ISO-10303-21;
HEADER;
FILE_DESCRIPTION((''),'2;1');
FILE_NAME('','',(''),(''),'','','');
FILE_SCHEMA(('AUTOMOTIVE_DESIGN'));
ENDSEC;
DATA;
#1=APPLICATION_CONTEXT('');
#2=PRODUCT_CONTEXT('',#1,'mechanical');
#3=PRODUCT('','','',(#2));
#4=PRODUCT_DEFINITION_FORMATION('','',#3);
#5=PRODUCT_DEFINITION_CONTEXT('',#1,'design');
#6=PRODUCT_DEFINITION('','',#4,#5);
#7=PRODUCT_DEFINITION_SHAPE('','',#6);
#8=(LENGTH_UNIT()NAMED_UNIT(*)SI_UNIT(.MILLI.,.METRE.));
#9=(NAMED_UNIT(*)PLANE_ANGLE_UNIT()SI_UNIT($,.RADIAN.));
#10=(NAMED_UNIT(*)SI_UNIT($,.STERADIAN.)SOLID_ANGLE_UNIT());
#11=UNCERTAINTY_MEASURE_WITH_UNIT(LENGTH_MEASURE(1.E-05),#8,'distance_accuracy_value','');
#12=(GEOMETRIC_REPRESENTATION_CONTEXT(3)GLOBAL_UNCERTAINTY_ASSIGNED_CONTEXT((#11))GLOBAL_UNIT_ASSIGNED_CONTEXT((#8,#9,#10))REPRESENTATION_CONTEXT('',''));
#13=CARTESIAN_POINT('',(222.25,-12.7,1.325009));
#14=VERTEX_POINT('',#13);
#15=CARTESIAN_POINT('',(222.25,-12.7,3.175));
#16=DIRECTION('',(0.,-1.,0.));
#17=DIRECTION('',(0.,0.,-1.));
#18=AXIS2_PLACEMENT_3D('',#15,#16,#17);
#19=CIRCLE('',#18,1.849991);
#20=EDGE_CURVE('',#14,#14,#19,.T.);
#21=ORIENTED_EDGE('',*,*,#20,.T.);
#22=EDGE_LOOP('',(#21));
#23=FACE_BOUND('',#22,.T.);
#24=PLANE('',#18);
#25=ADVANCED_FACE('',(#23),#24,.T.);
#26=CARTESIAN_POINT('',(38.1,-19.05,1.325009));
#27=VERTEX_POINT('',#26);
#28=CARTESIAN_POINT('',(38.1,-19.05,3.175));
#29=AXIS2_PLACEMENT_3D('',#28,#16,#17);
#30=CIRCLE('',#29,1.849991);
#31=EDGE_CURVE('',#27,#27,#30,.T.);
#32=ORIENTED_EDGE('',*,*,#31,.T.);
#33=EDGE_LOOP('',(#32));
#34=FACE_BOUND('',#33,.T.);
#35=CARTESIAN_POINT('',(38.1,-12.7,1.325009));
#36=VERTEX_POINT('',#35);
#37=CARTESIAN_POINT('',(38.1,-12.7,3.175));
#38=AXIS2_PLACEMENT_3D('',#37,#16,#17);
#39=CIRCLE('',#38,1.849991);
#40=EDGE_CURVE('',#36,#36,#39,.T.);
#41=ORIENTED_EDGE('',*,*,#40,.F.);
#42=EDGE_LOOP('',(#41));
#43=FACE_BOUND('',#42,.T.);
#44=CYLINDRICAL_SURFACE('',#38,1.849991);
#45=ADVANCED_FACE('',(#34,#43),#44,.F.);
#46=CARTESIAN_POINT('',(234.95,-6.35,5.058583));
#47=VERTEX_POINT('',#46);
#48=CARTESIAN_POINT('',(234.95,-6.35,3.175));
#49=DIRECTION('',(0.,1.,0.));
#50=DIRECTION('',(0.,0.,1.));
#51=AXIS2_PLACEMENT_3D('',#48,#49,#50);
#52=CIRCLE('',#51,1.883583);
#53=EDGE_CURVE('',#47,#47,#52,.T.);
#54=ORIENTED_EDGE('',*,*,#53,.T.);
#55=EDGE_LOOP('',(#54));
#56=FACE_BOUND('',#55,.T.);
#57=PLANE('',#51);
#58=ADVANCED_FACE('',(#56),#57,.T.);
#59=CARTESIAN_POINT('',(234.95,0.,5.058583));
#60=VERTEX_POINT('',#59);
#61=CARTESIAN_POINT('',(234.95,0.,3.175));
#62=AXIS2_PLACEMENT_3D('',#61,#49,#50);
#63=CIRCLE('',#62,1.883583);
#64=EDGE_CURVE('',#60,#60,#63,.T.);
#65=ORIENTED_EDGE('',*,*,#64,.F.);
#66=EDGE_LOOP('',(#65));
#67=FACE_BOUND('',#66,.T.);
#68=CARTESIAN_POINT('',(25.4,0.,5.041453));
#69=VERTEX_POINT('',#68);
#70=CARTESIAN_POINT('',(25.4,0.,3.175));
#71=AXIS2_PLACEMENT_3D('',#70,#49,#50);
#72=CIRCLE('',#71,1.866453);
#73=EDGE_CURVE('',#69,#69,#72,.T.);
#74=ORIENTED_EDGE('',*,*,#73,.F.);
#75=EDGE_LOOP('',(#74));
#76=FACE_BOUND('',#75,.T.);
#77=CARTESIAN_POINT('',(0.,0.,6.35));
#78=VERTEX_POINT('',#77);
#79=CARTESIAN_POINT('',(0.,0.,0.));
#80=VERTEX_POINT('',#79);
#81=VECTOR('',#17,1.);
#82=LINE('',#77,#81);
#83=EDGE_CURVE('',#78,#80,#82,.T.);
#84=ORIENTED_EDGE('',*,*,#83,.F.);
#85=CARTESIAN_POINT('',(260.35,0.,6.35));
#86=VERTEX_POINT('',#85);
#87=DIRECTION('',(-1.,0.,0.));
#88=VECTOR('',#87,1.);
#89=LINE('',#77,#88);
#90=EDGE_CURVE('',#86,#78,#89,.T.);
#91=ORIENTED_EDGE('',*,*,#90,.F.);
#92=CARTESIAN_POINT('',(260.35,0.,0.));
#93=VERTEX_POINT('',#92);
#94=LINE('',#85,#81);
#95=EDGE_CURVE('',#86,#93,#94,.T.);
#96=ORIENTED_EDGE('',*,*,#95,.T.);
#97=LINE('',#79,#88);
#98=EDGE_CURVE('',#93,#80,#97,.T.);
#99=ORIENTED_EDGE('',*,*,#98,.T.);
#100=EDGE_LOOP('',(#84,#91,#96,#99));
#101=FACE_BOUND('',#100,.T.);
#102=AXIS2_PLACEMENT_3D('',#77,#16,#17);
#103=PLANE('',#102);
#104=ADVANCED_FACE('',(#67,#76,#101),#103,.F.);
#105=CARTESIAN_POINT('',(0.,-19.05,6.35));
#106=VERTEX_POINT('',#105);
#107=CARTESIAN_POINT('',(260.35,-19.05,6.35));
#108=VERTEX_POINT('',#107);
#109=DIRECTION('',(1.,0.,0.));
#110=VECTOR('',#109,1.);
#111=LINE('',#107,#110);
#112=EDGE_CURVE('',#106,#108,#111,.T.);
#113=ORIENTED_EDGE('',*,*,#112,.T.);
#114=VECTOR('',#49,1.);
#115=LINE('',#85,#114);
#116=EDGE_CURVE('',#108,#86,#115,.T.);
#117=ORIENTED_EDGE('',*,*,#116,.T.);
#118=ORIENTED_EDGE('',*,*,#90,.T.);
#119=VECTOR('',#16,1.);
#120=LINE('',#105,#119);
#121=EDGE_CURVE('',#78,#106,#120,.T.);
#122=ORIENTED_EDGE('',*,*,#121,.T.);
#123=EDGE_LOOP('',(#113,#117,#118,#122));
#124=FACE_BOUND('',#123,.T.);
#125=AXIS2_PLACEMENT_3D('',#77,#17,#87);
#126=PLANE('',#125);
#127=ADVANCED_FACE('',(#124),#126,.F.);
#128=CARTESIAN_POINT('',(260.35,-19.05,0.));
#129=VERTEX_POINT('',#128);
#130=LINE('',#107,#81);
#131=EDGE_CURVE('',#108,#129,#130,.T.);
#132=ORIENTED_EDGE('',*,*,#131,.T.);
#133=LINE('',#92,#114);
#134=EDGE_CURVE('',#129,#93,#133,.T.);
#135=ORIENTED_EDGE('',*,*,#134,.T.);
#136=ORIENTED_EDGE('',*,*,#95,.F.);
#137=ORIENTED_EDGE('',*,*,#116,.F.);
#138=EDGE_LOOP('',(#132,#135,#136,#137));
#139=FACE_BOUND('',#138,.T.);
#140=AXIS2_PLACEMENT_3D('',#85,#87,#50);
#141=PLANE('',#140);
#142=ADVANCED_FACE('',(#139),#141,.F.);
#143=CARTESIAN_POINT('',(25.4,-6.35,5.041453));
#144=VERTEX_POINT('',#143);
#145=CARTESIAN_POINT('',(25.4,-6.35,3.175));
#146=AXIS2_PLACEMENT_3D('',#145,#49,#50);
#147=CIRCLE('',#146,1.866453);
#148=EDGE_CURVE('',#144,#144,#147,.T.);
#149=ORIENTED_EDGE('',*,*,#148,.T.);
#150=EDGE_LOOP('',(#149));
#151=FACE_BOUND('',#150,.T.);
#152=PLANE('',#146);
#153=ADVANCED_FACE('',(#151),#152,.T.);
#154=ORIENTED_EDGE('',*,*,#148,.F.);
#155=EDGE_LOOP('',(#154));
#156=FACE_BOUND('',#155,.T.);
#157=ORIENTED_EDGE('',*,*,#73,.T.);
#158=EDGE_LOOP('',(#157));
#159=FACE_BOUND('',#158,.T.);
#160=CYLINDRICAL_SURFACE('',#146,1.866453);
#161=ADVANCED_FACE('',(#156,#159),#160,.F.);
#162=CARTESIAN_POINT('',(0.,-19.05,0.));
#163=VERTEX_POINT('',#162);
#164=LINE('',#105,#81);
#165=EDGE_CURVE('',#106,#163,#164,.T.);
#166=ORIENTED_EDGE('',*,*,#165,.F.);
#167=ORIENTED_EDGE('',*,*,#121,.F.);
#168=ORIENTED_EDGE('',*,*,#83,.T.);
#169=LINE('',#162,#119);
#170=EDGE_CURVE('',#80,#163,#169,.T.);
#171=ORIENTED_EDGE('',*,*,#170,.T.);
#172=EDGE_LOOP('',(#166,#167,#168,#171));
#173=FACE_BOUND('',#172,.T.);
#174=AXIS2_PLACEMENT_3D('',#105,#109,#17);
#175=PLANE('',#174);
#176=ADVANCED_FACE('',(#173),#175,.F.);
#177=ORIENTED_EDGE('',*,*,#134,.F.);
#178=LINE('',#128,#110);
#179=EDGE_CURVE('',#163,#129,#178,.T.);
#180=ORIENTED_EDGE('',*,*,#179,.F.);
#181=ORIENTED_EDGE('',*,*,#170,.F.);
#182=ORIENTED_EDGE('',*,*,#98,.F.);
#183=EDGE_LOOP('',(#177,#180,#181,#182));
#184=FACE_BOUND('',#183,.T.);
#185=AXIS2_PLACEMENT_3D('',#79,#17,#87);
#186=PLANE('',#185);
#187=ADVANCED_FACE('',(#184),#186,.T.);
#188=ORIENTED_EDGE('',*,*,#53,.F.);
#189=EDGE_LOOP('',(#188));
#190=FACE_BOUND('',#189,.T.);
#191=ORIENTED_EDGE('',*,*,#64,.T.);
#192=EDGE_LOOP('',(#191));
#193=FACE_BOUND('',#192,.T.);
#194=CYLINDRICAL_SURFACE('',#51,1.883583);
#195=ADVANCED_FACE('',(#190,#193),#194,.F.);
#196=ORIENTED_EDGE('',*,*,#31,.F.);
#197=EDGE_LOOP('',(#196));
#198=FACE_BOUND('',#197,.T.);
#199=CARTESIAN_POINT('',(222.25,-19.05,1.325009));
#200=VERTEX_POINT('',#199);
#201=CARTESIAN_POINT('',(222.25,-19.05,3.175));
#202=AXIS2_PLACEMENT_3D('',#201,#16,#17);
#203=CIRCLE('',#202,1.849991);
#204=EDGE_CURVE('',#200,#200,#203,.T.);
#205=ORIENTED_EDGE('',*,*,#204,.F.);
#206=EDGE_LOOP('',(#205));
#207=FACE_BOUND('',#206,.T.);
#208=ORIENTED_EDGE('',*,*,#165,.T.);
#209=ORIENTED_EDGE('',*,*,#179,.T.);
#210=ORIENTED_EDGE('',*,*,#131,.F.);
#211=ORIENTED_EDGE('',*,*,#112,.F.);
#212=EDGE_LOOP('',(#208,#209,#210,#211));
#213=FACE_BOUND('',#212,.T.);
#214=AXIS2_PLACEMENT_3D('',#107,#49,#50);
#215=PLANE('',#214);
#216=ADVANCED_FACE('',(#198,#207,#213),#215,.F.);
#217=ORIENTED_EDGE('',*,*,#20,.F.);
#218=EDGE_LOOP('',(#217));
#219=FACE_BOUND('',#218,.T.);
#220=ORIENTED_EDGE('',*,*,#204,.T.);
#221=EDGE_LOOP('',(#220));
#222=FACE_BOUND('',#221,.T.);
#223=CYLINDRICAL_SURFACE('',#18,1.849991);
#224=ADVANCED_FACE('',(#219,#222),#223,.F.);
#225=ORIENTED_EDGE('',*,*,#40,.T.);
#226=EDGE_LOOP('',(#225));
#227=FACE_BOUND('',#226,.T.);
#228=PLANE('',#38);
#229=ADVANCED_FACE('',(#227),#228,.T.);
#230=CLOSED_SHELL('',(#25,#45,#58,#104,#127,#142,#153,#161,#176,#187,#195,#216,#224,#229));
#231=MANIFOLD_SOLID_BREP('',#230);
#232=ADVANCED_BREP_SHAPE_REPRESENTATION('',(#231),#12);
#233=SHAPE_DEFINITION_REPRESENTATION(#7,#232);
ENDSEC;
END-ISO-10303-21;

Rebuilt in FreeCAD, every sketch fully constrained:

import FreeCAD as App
import Part
import Sketcher
Q = App.Units.Quantity

doc = App.newDocument("Part")
params = doc.addObject("Spreadsheet::Sheet", "Params")
for row, (alias, value) in enumerate([
    ("sketch1_width", "10.25 in"),
    ("sketch1_height", "0.75 in"),
    ("pad1_length", "0.25 in"),
    ("pocket1_length", "0.25 in"),
    ("pocket2_length", "0.25 in"),
], start=1):
    params.set(f"A{row}", alias)
    params.set(f"B{row}", "=" + value)
    params.setAlias(f"B{row}", alias)

body = doc.addObject("PartDesign::Body", "Body")

sketch1 = body.newObject("Sketcher::SketchObject", "Sketch")
sketch1.AttachmentSupport = (doc.getObject("XY_Plane"), [""])
sketch1.MapMode = "FlatFace"
sketch1.addGeometry([
    Part.LineSegment(App.Vector(0, 0, 0), App.Vector(0, -19, 0)),
    Part.LineSegment(App.Vector(0, -19, 0), App.Vector(260, -19, 0)),
    Part.LineSegment(App.Vector(260, -19, 0), App.Vector(260, 0, 0)),
    Part.LineSegment(App.Vector(260, 0, 0), App.Vector(0, 0, 0)),
], False)
sketch1.addConstraint([
    Sketcher.Constraint("Coincident", 0, 2, 1, 1),
    Sketcher.Constraint("Coincident", 1, 2, 2, 1),
    Sketcher.Constraint("Coincident", 2, 2, 3, 1),
    Sketcher.Constraint("Coincident", 3, 2, 0, 1),
    Sketcher.Constraint("Vertical", 0),
    Sketcher.Constraint("Horizontal", 1),
    Sketcher.Constraint("Vertical", 2),
    Sketcher.Constraint("Horizontal", 3),
    Sketcher.Constraint("Coincident", 3, 2, -1, 1),
    Sketcher.Constraint("DistanceX", 1, 1, 1, 2, Q("10.25 in")),
    Sketcher.Constraint("DistanceY", 0, 2, 0, 1, Q("0.75 in")),
])
sketch1.setExpression("Constraints[9]", "Params.sketch1_width")
sketch1.setExpression("Constraints[10]", "Params.sketch1_height")
pad1 = body.newObject("PartDesign::Pad", "Pad")
pad1.Profile = sketch1
pad1.setExpression("Length", "Params.pad1_length")

sketch2 = body.newObject("Sketcher::SketchObject", "Sketch001")
sketch2.AttachmentSupport = (doc.getObject("XZ_Plane"), [""])
sketch2.MapMode = "FlatFace"
sketch2.addGeometry([
    Part.Circle(App.Vector(234.9, 3.2, 0), App.Vector(0, 0, 1), 1.9),
    Part.Circle(App.Vector(25.4, 3.2, 0), App.Vector(0, 0, 1), 1.9),
], False)
sketch2.addConstraint([
    Sketcher.Constraint("Horizontal", 0, 3, 1, 3),
    Sketcher.Constraint("DistanceX", -1, 1, 1, 3, Q("1 in")),
    Sketcher.Constraint("DistanceX", -1, 1, 0, 3, Q("9.25 in")),
    Sketcher.Constraint("DistanceY", -1, 1, 0, 3, Q("0.125 in")),
    Sketcher.Constraint("Diameter", 0, Q("3.767165 mm")),
    Sketcher.Constraint("Diameter", 1, Q("3.732907 mm")),
])
pocket1 = body.newObject("PartDesign::Pocket", "Pocket")
pocket1.Profile = sketch2
pocket1.setExpression("Length", "Params.pocket1_length")
pocket1.Reversed = True

sketch3 = body.newObject("Sketcher::SketchObject", "Sketch002")
sketch3.AttachmentSupport = (doc.getObject("XZ_Plane"), [""])
sketch3.MapMode = "FlatFace"
sketch3.AttachmentOffset = App.Placement(App.Vector(0, 0, 0.75 * 25.4), App.Rotation())
sketch3.addGeometry([
    Part.Circle(App.Vector(222.2, 3.2, 0), App.Vector(0, 0, 1), 1.8),
    Part.Circle(App.Vector(38.1, 3.2, 0), App.Vector(0, 0, 1), 1.8),
], False)
sketch3.addConstraint([
    Sketcher.Constraint("Equal", 0, 1),
    Sketcher.Constraint("Horizontal", 0, 3, 1, 3),
    Sketcher.Constraint("DistanceX", -1, 1, 1, 3, Q("1.5 in")),
    Sketcher.Constraint("DistanceX", -1, 1, 0, 3, Q("8.75 in")),
    Sketcher.Constraint("Diameter", 0, Q("3.699981 mm")),
    Sketcher.Constraint("DistanceY", -1, 1, 0, 3, Q("0.125 in")),
])
pocket2 = body.newObject("PartDesign::Pocket", "Pocket001")
pocket2.Profile = sketch3
pocket2.setExpression("Length", "Params.pocket2_length")

doc.recompute()
